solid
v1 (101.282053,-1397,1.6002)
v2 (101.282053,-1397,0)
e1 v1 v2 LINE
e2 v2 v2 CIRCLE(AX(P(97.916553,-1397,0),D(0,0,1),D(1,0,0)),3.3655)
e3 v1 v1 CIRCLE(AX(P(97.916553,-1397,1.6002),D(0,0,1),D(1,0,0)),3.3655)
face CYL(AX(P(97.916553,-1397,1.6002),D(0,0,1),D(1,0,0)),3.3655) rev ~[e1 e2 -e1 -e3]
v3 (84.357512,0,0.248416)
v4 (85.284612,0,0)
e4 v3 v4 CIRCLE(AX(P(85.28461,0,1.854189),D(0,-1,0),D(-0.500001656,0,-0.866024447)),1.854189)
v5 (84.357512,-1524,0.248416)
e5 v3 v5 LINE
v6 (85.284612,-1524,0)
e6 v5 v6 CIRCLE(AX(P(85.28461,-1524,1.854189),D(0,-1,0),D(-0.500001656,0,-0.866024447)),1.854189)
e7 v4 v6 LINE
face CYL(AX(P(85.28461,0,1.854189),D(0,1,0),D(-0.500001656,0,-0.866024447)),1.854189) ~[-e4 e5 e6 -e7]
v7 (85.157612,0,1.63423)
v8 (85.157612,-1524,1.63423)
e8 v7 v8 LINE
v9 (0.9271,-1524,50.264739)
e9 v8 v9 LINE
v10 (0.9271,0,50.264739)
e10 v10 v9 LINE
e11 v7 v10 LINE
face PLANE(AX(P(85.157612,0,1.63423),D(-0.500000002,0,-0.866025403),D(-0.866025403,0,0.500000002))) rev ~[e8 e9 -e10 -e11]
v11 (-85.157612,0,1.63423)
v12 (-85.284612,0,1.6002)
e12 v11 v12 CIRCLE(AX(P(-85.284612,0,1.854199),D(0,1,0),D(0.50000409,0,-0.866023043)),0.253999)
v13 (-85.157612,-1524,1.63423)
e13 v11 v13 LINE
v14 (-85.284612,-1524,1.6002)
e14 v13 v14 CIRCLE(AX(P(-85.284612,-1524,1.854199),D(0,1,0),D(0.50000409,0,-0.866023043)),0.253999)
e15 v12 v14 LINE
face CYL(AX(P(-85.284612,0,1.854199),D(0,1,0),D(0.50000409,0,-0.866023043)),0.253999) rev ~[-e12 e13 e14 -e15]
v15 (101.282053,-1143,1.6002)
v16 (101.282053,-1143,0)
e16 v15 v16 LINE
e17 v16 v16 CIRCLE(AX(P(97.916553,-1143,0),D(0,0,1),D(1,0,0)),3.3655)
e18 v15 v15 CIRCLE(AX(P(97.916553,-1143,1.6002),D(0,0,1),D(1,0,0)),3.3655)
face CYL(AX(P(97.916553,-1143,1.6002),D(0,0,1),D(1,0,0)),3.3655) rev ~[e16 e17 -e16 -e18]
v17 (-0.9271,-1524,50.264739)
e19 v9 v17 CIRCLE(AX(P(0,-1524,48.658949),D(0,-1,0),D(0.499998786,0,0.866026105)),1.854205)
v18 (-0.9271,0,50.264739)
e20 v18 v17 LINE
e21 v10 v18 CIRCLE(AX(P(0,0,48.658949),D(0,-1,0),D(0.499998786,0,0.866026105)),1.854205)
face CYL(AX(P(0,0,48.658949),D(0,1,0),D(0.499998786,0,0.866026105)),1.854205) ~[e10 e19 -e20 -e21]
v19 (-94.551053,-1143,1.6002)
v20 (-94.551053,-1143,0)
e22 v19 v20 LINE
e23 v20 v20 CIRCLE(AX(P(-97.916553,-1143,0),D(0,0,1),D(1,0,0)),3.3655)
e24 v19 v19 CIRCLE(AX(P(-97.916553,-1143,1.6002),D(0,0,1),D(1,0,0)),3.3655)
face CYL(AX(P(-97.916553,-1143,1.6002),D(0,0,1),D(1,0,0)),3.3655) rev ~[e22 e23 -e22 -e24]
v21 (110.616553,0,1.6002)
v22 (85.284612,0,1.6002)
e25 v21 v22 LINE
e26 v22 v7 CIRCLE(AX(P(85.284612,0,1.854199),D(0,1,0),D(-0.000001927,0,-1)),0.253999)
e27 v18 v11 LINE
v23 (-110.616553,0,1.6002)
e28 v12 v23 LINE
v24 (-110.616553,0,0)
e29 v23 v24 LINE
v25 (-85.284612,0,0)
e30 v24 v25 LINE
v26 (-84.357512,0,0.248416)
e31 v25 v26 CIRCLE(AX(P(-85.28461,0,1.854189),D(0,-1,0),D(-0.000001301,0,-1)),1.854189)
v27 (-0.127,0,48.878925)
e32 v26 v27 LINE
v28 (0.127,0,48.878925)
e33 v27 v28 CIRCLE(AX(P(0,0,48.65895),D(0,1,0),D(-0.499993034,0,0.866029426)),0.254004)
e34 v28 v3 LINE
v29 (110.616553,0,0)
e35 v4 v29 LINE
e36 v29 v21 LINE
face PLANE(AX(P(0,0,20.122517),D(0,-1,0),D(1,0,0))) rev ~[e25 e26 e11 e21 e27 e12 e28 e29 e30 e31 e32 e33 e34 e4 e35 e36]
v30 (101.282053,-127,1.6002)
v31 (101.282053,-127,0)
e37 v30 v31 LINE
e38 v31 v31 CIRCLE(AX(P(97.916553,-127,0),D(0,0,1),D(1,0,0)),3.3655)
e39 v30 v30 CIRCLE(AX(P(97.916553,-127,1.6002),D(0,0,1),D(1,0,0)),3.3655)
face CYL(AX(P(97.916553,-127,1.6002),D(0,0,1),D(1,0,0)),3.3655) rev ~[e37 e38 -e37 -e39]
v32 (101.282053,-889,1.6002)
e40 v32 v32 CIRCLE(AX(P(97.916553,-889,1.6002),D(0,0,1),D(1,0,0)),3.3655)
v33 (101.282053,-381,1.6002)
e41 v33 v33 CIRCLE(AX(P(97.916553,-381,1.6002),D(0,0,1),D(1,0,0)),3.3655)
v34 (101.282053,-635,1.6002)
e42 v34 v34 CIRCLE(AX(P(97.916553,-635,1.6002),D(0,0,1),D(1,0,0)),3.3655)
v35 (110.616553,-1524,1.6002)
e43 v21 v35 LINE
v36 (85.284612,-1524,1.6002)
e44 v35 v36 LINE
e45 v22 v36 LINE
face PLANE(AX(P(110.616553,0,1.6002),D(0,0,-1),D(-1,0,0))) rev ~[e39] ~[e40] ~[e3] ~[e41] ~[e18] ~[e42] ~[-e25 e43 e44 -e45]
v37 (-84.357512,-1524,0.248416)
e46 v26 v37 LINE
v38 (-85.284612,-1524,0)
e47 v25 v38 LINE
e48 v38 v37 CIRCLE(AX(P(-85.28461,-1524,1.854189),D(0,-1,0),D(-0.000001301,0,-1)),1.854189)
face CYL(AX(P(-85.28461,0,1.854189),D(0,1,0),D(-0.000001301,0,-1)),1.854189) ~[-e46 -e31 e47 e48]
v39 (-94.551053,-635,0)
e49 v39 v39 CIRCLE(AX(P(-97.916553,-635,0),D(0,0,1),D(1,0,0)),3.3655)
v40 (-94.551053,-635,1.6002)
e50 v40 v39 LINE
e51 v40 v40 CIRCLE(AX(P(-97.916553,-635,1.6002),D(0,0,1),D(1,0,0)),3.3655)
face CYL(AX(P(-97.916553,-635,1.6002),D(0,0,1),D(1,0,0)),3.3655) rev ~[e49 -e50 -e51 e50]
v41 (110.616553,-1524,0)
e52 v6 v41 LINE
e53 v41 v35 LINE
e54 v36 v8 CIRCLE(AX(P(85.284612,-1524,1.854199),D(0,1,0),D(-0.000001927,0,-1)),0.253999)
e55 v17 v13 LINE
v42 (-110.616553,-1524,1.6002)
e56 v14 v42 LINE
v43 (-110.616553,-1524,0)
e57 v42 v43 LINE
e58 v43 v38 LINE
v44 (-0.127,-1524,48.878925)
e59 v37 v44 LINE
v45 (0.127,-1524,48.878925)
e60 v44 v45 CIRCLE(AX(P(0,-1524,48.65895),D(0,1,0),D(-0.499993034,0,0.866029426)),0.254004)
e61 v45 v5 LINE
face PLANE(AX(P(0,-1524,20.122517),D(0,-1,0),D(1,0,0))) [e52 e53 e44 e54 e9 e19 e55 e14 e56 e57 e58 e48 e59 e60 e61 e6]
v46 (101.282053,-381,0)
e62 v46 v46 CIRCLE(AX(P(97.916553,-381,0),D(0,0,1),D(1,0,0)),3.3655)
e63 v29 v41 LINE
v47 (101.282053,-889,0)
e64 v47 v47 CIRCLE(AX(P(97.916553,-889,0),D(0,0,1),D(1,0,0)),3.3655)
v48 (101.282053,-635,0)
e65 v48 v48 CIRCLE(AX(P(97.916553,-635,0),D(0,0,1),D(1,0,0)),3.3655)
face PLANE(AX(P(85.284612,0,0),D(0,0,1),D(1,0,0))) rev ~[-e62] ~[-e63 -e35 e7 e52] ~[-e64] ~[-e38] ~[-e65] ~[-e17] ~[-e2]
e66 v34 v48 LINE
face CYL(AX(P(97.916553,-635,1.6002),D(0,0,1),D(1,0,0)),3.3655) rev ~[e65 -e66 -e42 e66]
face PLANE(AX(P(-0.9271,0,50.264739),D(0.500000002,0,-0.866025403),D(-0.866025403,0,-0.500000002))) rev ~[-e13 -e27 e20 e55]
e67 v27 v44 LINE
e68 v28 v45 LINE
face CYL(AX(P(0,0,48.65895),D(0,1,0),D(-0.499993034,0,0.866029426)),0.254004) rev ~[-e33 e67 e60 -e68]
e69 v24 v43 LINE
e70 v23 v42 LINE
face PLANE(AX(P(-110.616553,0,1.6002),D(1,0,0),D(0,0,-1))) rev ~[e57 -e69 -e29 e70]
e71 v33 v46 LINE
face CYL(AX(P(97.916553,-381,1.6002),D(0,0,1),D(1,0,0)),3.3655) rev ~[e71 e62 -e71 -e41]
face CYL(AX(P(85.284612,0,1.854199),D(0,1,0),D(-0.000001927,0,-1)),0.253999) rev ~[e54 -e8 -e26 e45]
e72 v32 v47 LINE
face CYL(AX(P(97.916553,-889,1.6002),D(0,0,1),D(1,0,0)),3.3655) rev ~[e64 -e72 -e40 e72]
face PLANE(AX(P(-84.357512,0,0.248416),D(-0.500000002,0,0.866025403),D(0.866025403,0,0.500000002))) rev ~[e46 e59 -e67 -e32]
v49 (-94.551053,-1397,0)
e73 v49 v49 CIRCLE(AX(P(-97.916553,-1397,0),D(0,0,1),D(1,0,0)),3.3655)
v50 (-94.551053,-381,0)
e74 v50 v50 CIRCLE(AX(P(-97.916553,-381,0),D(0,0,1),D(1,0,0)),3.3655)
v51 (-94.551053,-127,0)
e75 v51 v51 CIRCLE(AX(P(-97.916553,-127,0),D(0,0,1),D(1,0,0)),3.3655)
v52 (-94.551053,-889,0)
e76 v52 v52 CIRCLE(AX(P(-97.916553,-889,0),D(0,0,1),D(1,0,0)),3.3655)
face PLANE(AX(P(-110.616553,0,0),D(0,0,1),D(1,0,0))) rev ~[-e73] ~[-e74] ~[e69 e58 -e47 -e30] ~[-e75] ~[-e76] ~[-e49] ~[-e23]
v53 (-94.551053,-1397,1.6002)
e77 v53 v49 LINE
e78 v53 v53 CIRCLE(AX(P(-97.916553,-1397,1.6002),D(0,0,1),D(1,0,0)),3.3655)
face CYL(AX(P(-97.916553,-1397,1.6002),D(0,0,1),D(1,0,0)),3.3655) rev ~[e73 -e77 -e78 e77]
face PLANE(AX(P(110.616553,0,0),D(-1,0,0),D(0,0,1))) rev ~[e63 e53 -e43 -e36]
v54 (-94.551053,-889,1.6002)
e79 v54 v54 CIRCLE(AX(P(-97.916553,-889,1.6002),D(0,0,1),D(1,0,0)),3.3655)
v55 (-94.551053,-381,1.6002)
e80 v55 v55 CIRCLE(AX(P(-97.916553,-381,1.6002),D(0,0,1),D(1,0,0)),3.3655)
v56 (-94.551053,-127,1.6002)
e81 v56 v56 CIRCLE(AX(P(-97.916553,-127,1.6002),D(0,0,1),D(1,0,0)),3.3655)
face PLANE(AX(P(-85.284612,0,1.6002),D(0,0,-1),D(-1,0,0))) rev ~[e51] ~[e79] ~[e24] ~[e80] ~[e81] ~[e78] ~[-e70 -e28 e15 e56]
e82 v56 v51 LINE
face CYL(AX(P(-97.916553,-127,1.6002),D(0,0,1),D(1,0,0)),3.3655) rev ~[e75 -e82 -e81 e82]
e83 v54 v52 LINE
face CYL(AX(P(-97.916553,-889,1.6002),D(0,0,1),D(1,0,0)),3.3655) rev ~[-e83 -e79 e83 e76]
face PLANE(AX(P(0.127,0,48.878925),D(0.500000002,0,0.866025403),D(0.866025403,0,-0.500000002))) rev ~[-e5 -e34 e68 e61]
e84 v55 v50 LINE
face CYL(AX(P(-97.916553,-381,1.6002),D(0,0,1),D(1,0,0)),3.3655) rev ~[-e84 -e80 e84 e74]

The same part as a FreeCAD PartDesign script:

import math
import FreeCAD as App
import Part
import Sketcher
from FreeCAD import Vector
Q = App.Units.Quantity

doc = App.newDocument("Part")
body = doc.addObject("PartDesign::Body", "Body")

# Sketch on XZ plane
sketch1 = body.newObject("Sketcher::SketchObject", "Sketch")
sketch1.AttachmentSupport = (doc.getObject("XZ_Plane"), [""])
sketch1.MapMode = "FlatFace"
sketch1.addGeometry(Part.ArcOfCircle(Part.Circle(Vector(0, 48.658949, 0), Vector(0, 0, 1), 1.854205), math.radians(60.00008), math.radians(119.99992)), False)
sketch1.addGeometry(Part.LineSegment(Vector(-0.9271, 50.264739, 0), Vector(-85.157612, 1.63423, 0)), False)
sketch1.addGeometry(Part.ArcOfCircle(Part.Circle(Vector(-85.284612, 1.854199, 0), Vector(0, 0, 1), 0.253999), math.radians(-89.99989), math.radians(-59.999729)), False)
sketch1.addGeometry(Part.LineSegment(Vector(-85.284612, 1.6002, 0), Vector(-110.616553, 1.6002, 0)), False)
sketch1.addGeometry(Part.LineSegment(Vector(-110.616553, 1.6002, 0), Vector(-110.616553, 0, 0)), False)
sketch1.addGeometry(Part.LineSegment(Vector(-110.616553, 0, 0), Vector(-85.284612, 0, 0)), False)
sketch1.addGeometry(Part.ArcOfCircle(Part.Circle(Vector(-85.28461, 1.854189, 0), Vector(0, 0, 1), 1.854189), math.radians(-90.000075), math.radians(-59.99989)), False)
sketch1.addGeometry(Part.LineSegment(Vector(-84.357512, 0.248416, 0), Vector(-0.127, 48.878925, 0)), False)
sketch1.addGeometry(Part.ArcOfCircle(Part.Circle(Vector(0, 48.65895, 0), Vector(0, 0, 1), 0.254004), math.radians(60.000461), math.radians(119.999539)), False)
sketch1.addGeometry(Part.LineSegment(Vector(0.127, 48.878925, 0), Vector(84.357512, 0.248416, 0)), False)
sketch1.addGeometry(Part.ArcOfCircle(Part.Circle(Vector(85.28461, 1.854189, 0), Vector(0, 0, 1), 1.854189), math.radians(-120.00011), math.radians(-89.999925)), False)
sketch1.addGeometry(Part.LineSegment(Vector(85.284612, 0, 0), Vector(110.616553, 0, 0)), False)
sketch1.addGeometry(Part.LineSegment(Vector(110.616553, 0, 0), Vector(110.616553, 1.6002, 0)), False)
sketch1.addGeometry(Part.LineSegment(Vector(110.616553, 1.6002, 0), Vector(85.284612, 1.6002, 0)), False)
sketch1.addGeometry(Part.ArcOfCircle(Part.Circle(Vector(85.284612, 1.854199, 0), Vector(0, 0, 1), 0.253999), math.radians(-120.000271), math.radians(-90.00011)), False)
sketch1.addGeometry(Part.LineSegment(Vector(85.157612, 1.63423, 0), Vector(0.9271, 50.264739, 0)), False)
sketch1.addConstraint(Sketcher.Constraint("Coincident", 0, 2, 1, 1))
sketch1.addConstraint(Sketcher.Constraint("Coincident", 1, 2, 2, 2))
sketch1.addConstraint(Sketcher.Constraint("Coincident", 2, 1, 3, 1))
sketch1.addConstraint(Sketcher.Constraint("Coincident", 3, 2, 4, 1))
sketch1.addConstraint(Sketcher.Constraint("Coincident", 4, 2, 5, 1))
sketch1.addConstraint(Sketcher.Constraint("Coincident", 5, 2, 6, 1))
sketch1.addConstraint(Sketcher.Constraint("Coincident", 6, 2, 7, 1))
sketch1.addConstraint(Sketcher.Constraint("Coincident", 7, 2, 8, 2))
sketch1.addConstraint(Sketcher.Constraint("Coincident", 8, 1, 9, 1))
sketch1.addConstraint(Sketcher.Constraint("Coincident", 9, 2, 10, 1))
sketch1.addConstraint(Sketcher.Constraint("Coincident", 10, 2, 11, 1))
sketch1.addConstraint(Sketcher.Constraint("Coincident", 11, 2, 12, 1))
sketch1.addConstraint(Sketcher.Constraint("Coincident", 12, 2, 13, 1))
sketch1.addConstraint(Sketcher.Constraint("Coincident", 13, 2, 14, 2))
sketch1.addConstraint(Sketcher.Constraint("Coincident", 14, 1, 15, 1))
sketch1.addConstraint(Sketcher.Constraint("Coincident", 15, 2, 0, 1))
sketch1.addConstraint(Sketcher.Constraint("Horizontal", 3))
sketch1.addConstraint(Sketcher.Constraint("Vertical", 4))
sketch1.addConstraint(Sketcher.Constraint("Horizontal", 5))
sketch1.addConstraint(Sketcher.Constraint("Horizontal", 11))
sketch1.addConstraint(Sketcher.Constraint("Vertical", 12))
sketch1.addConstraint(Sketcher.Constraint("Horizontal", 13))
sketch1.addConstraint(Sketcher.Constraint("Coincident", 8, 3, 0, 3))
sketch1.addConstraint(Sketcher.Constraint("PointOnObject", 0, 3, -2))
sketch1.addConstraint(Sketcher.Constraint("PointOnObject", 4, 2, -1))
sketch1.addConstraint(Sketcher.Constraint("PointOnObject", 10, 2, -1))
sketch1.addConstraint(Sketcher.Constraint("Radius", 2, Q("0.01 in")))
sketch1.addConstraint(Sketcher.Constraint("Radius", 8, Q("0.0100001 in")))
sketch1.addConstraint(Sketcher.Constraint("Radius", 14, Q("0.01 in")))
sketch1.addConstraint(Sketcher.Constraint("Radius", 0, Q("0.0730002 in")))
sketch1.addConstraint(Sketcher.Constraint("DistanceY", 4, 2, 4, 1, Q("0.063 in")))
sketch1.addConstraint(Sketcher.Constraint("DistanceY", 12, 1, 12, 2, Q("0.063 in")))
sketch1.addConstraint(Sketcher.Constraint("DistanceX", 7, 2, 8, 1, Q("0.01 in")))
sketch1.addConstraint(Sketcher.Constraint("DistanceX", 7, 2, -1, 1, Q("0.005 in")))
sketch1.addConstraint(Sketcher.Constraint("Radius", 6, Q("1.854189 mm")))
sketch1.addConstraint(Sketcher.Constraint("Radius", 10, Q("1.854189 mm")))
sketch1.addConstraint(Sketcher.Constraint("DistanceX", 6, 3, 1, 2, Q("0.0049999 in")))
sketch1.addConstraint(Sketcher.Constraint("DistanceX", 2, 3, 1, 2, Q("0.005 in")))
sketch1.addConstraint(Sketcher.Constraint("DistanceX", 2, 1, 1, 2, Q("0.005 in")))
sketch1.addConstraint(Sketcher.Constraint("DistanceX", 5, 2, 1, 2, Q("0.005 in")))
sketch1.addConstraint(Sketcher.Constraint("DistanceX", 14, 1, 13, 2, Q("0.005 in")))
sketch1.addConstraint(Sketcher.Constraint("DistanceX", 14, 1, 10, 3, Q("0.0049999 in")))
sketch1.addConstraint(Sketcher.Constraint("DistanceX", 14, 1, 14, 3, Q("0.005 in")))
sketch1.addConstraint(Sketcher.Constraint("DistanceX", 14, 1, 10, 2, Q("0.005 in")))
sketch1.addConstraint(Sketcher.Constraint("DistanceX", 0, 2, 15, 2, Q("0.073 in")))
sketch1.addConstraint(Sketcher.Constraint("DistanceX", 0, 2, -1, 1, Q("0.0365 in")))
sketch1.addConstraint(Sketcher.Constraint("DistanceX", 5, 2, 6, 2, Q("0.0365 in")))
sketch1.addConstraint(Sketcher.Constraint("DistanceX", 9, 2, 10, 3, Q("0.0364999 in")))
sketch1.addConstraint(Sketcher.Constraint("DistanceX", 3, 2, 3, 1, Q("25.331941 mm")))
sketch1.addConstraint(Sketcher.Constraint("DistanceX", 11, 1, 11, 2, Q("25.331941 mm")))
sketch1.addConstraint(Sketcher.Constraint("DistanceY", -1, 1, 0, 3, Q("48.658949 mm")))
sketch1.addConstraint(Sketcher.Constraint("DistanceX", 6, 3, -1, 1, Q("85.28461 mm")))
sketch1.addConstraint(Sketcher.Constraint("DistanceX", -1, 1, 10, 3, Q("85.28461 mm")))
pad1 = body.newObject("PartDesign::Pad", "Pad")
pad1.Profile = sketch1
pad1.Length = Q("60 in")

# Sketch on XY plane
sketch2 = body.newObject("Sketcher::SketchObject", "Sketch001")
sketch2.AttachmentSupport = (doc.getObject("XY_Plane"), [""])
sketch2.MapMode = "FlatFace"
sketch2.AttachmentOffset = App.Placement(Vector(0, 0, 0.063 * 25.4), App.Rotation())
sketch2.addGeometry(Part.Circle(Vector(-97.9, -127, 0), Vector(0, 0, 1), 3.4), False)
sketch2.addGeometry(Part.Circle(Vector(97.9, -127, 0), Vector(0, 0, 1), 3.4), False)
sketch2.addGeometry(Part.Circle(Vector(-97.9, -381, 0), Vector(0, 0, 1), 3.4), False)
sketch2.addGeometry(Part.Circle(Vector(97.9, -381, 0), Vector(0, 0, 1), 3.4), False)
sketch2.addGeometry(Part.Circle(Vector(-97.9, -635, 0), Vector(0, 0, 1), 3.4), False)
sketch2.addGeometry(Part.Circle(Vector(97.9, -635, 0), Vector(0, 0, 1), 3.4), False)
sketch2.addGeometry(Part.Circle(Vector(-97.9, -889, 0), Vector(0, 0, 1), 3.4), False)
sketch2.addGeometry(Part.Circle(Vector(97.9, -889, 0), Vector(0, 0, 1), 3.4), False)
sketch2.addGeometry(Part.Circle(Vector(-97.9, -1143, 0), Vector(0, 0, 1), 3.4), False)
sketch2.addGeometry(Part.Circle(Vector(97.9, -1143, 0), Vector(0, 0, 1), 3.4), False)
sketch2.addGeometry(Part.Circle(Vector(-97.9, -1397, 0), Vector(0, 0, 1), 3.4), False)
sketch2.addGeometry(Part.Circle(Vector(97.9, -1397, 0), Vector(0, 0, 1), 3.4), False)
sketch2.addConstraint(Sketcher.Constraint("Equal", 0, 1))
sketch2.addConstraint(Sketcher.Constraint("Equal", 1, 2))
sketch2.addConstraint(Sketcher.Constraint("Equal", 2, 3))
sketch2.addConstraint(Sketcher.Constraint("Equal", 3, 4))
sketch2.addConstraint(Sketcher.Constraint("Equal", 4, 5))
sketch2.addConstraint(Sketcher.Constraint("Equal", 5, 6))
sketch2.addConstraint(Sketcher.Constraint("Equal", 6, 7))
sketch2.addConstraint(Sketcher.Constraint("Equal", 7, 8))
sketch2.addConstraint(Sketcher.Constraint("Equal", 8, 9))
sketch2.addConstraint(Sketcher.Constraint("Equal", 9, 10))
sketch2.addConstraint(Sketcher.Constraint("Equal", 10, 11))
sketch2.addConstraint(Sketcher.Constraint("Symmetric", 0, 3, 1, 3, -2))
sketch2.addConstraint(Sketcher.Constraint("Symmetric", 2, 3, 3, 3, -2))
sketch2.addConstraint(Sketcher.Constraint("Symmetric", 4, 3, 5, 3, -2))
sketch2.addConstraint(Sketcher.Constraint("Symmetric", 6, 3, 7, 3, -2))
sketch2.addConstraint(Sketcher.Constraint("Symmetric", 8, 3, 9, 3, -2))
sketch2.addConstraint(Sketcher.Constraint("Symmetric", 10, 3, 11, 3, -2))
sketch2.addConstraint(Sketcher.Constraint("Vertical", 0, 3, 2, 3))
sketch2.addConstraint(Sketcher.Constraint("Vertical", 2, 3, 4, 3))
sketch2.addConstraint(Sketcher.Constraint("Vertical", 4, 3, 6, 3))
sketch2.addConstraint(Sketcher.Constraint("Vertical", 6, 3, 8, 3))
sketch2.addConstraint(Sketcher.Constraint("Vertical", 8, 3, 10, 3))
sketch2.addConstraint(Sketcher.Constraint("Diameter", 0, Q("0.265 in")))
sketch2.addConstraint(Sketcher.Constraint("DistanceY", 0, 3, -1, 1, Q("5 in")))
sketch2.addConstraint(Sketcher.Constraint("DistanceY", 2, 3, -1, 1, Q("15 in")))
sketch2.addConstraint(Sketcher.Constraint("DistanceY", 4, 3, -1, 1, Q("25 in")))
sketch2.addConstraint(Sketcher.Constraint("DistanceY", 6, 3, -1, 1, Q("35 in")))
sketch2.addConstraint(Sketcher.Constraint("DistanceY", 8, 3, -1, 1, Q("45 in")))
sketch2.addConstraint(Sketcher.Constraint("DistanceY", 10, 3, -1, 1, Q("55 in")))
sketch2.addConstraint(Sketcher.Constraint("DistanceX", 0, 3, -1, 1, Q("97.916553 mm")))
pocket1 = body.newObject("PartDesign::Pocket", "Pocket")
pocket1.Profile = sketch2
pocket1.Type = "ThroughAll"

doc.recompute()
